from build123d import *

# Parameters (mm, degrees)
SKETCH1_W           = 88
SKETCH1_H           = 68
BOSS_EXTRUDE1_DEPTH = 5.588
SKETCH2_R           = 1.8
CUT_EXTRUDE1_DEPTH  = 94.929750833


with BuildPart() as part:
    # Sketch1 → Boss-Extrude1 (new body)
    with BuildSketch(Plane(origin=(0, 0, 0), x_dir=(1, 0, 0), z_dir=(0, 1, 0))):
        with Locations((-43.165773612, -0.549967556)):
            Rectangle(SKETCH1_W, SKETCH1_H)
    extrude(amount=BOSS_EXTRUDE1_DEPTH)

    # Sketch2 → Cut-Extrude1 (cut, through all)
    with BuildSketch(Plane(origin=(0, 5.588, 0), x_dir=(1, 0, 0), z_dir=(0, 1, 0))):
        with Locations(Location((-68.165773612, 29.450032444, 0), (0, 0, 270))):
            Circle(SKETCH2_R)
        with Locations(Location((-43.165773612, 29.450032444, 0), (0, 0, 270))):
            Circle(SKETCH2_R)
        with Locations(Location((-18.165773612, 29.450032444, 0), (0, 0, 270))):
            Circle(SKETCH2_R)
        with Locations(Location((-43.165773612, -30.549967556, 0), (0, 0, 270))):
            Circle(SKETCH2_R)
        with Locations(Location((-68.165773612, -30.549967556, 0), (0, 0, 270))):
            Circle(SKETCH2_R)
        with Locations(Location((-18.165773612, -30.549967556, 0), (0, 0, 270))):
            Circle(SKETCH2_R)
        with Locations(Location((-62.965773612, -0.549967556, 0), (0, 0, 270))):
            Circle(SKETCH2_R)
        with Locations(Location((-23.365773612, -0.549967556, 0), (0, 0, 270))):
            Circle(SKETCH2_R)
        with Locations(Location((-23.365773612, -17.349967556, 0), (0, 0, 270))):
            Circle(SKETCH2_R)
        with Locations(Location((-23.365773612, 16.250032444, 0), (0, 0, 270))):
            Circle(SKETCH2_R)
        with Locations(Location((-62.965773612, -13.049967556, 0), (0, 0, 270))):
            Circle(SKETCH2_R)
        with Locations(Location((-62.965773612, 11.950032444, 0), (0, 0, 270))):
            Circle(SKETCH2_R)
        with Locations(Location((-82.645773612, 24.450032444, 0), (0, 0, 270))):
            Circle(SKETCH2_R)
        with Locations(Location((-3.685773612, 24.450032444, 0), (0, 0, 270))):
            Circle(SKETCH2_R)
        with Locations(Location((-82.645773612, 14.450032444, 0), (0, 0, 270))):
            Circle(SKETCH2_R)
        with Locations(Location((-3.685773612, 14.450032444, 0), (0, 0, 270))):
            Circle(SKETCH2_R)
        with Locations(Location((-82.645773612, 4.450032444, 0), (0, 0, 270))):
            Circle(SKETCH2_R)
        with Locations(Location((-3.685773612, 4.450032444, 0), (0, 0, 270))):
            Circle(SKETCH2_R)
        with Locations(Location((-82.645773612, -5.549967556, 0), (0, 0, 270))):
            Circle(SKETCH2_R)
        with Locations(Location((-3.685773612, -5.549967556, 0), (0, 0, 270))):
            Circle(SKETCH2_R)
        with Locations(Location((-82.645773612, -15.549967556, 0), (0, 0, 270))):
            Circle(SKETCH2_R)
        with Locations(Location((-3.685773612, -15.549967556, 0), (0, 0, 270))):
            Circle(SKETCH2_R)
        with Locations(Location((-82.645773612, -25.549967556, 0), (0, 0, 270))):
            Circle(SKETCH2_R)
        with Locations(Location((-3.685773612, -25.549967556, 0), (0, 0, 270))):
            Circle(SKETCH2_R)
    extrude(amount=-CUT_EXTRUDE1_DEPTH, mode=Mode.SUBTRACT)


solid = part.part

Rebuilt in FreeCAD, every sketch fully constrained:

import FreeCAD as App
import Part
import Sketcher

V = App.Vector


def add_polygon(sketch, points):
    """Adds a closed chain of lines whose ends are joined by coincident constraints."""
    first, n = sketch.GeometryCount, len(points)
    for a, b in zip(points, points[1:] + points[:1]):
        sketch.addGeometry(Part.LineSegment(App.Vector(*a, 0), App.Vector(*b, 0)), False)
    for i in range(n):
        sketch.addConstraint(Sketcher.Constraint("Coincident", first + i, 2, first + (i + 1) % n, 1))

doc = App.newDocument("Part")
body = doc.addObject("PartDesign::Body", "Body")

sketch1 = doc.addObject("Sketcher::SketchObject", "Sketch")
body.addObject(sketch1)
sketch1.AttachmentSupport = (doc.XZ_Plane, [""])
sketch1.MapMode = "FlatFace"
add_polygon(sketch1, [(-87, -33), (-87, 35), (1, 35), (1, -33)])
sketch1.addConstraint(Sketcher.Constraint("Vertical", 0))
sketch1.addConstraint(Sketcher.Constraint("Horizontal", 1))
sketch1.addConstraint(Sketcher.Constraint("Vertical", 2))
sketch1.addConstraint(Sketcher.Constraint("Horizontal", 3))
sketch1.addConstraint(Sketcher.Constraint("DistanceX", 1, 1, 1, 2, 88.0))
sketch1.addConstraint(Sketcher.Constraint("DistanceY", 0, 1, 0, 2, 68.0))
sketch1.addConstraint(Sketcher.Constraint("DistanceX", 0, 2, -1, 1, 87.165774))
sketch1.addConstraint(Sketcher.Constraint("DistanceY", -1, 1, 0, 2, 34.549968))
pad1 = doc.addObject("PartDesign::Pad", "Pad")
body.addObject(pad1)
pad1.Profile = sketch1
pad1.Length = 5.588
pad1.Reversed = True

sketch2 = doc.addObject("Sketcher::SketchObject", "Sketch001")
body.addObject(sketch2)
sketch2.AttachmentSupport = (doc.XZ_Plane, [""])
sketch2.MapMode = "FlatFace"
sketch2.AttachmentOffset = App.Placement(V(0, 0, -5.588), App.Rotation())
sketch2.addGeometry(Part.Circle(V(-68.2, -29.5, 0), V(0, 0, 1), 1.8), False)
sketch2.addGeometry(Part.Circle(V(-43.2, -29.5, 0), V(0, 0, 1), 1.8), False)
sketch2.addGeometry(Part.Circle(V(-18.2, -29.5, 0), V(0, 0, 1), 1.8), False)
sketch2.addGeometry(Part.Circle(V(-43.2, 30.5, 0), V(0, 0, 1), 1.8), False)
sketch2.addGeometry(Part.Circle(V(-68.2, 30.5, 0), V(0, 0, 1), 1.8), False)
sketch2.addGeometry(Part.Circle(V(-18.2, 30.5, 0), V(0, 0, 1), 1.8), False)
sketch2.addGeometry(Part.Circle(V(-63, 0.5, 0), V(0, 0, 1), 1.8), False)
sketch2.addGeometry(Part.Circle(V(-23.4, 0.5, 0), V(0, 0, 1), 1.8), False)
sketch2.addGeometry(Part.Circle(V(-23.4, 17.3, 0), V(0, 0, 1), 1.8), False)
sketch2.addGeometry(Part.Circle(V(-23.4, -16.3, 0), V(0, 0, 1), 1.8), False)
sketch2.addGeometry(Part.Circle(V(-63, 13, 0), V(0, 0, 1), 1.8), False)
sketch2.addGeometry(Part.Circle(V(-63, -12, 0), V(0, 0, 1), 1.8), False)
sketch2.addGeometry(Part.Circle(V(-82.6, -24.5, 0), V(0, 0, 1), 1.8), False)
sketch2.addGeometry(Part.Circle(V(-3.7, -24.5, 0), V(0, 0, 1), 1.8), False)
sketch2.addGeometry(Part.Circle(V(-82.6, -14.5, 0), V(0, 0, 1), 1.8), False)
sketch2.addGeometry(Part.Circle(V(-3.7, -14.5, 0), V(0, 0, 1), 1.8), False)
sketch2.addGeometry(Part.Circle(V(-82.6, -4.5, 0), V(0, 0, 1), 1.8), False)
sketch2.addGeometry(Part.Circle(V(-3.7, -4.5, 0), V(0, 0, 1), 1.8), False)
sketch2.addGeometry(Part.Circle(V(-82.6, 5.5, 0), V(0, 0, 1), 1.8), False)
sketch2.addGeometry(Part.Circle(V(-3.7, 5.5, 0), V(0, 0, 1), 1.8), False)
sketch2.addGeometry(Part.Circle(V(-82.6, 15.5, 0), V(0, 0, 1), 1.8), False)
sketch2.addGeometry(Part.Circle(V(-3.7, 15.5, 0), V(0, 0, 1), 1.8), False)
sketch2.addGeometry(Part.Circle(V(-82.6, 25.5, 0), V(0, 0, 1), 1.8), False)
sketch2.addGeometry(Part.Circle(V(-3.7, 25.5, 0), V(0, 0, 1), 1.8), False)
sketch2.addConstraint(Sketcher.Constraint("Equal", 0, 1))
sketch2.addConstraint(Sketcher.Constraint("Equal", 1, 2))
sketch2.addConstraint(Sketcher.Constraint("Equal", 2, 3))
sketch2.addConstraint(Sketcher.Constraint("Equal", 3, 4))
sketch2.addConstraint(Sketcher.Constraint("Equal", 4, 5))
sketch2.addConstraint(Sketcher.Constraint("Equal", 5, 6))
sketch2.addConstraint(Sketcher.Constraint("Equal", 6, 7))
sketch2.addConstraint(Sketcher.Constraint("Equal", 7, 8))
sketch2.addConstraint(Sketcher.Constraint("Equal", 8, 9))
sketch2.addConstraint(Sketcher.Constraint("Equal", 9, 10))
sketch2.addConstraint(Sketcher.Constraint("Equal", 10, 11))
sketch2.addConstraint(Sketcher.Constraint("Equal", 11, 12))
sketch2.addConstraint(Sketcher.Constraint("Equal", 12, 13))
sketch2.addConstraint(Sketcher.Constraint("Equal", 13, 14))
sketch2.addConstraint(Sketcher.Constraint("Equal", 14, 15))
sketch2.addConstraint(Sketcher.Constraint("Equal", 15, 16))
sketch2.addConstraint(Sketcher.Constraint("Equal", 16, 17))
sketch2.addConstraint(Sketcher.Constraint("Equal", 17, 18))
sketch2.addConstraint(Sketcher.Constraint("Equal", 18, 19))
sketch2.addConstraint(Sketcher.Constraint("Equal", 19, 20))
sketch2.addConstraint(Sketcher.Constraint("Equal", 20, 21))
sketch2.addConstraint(Sketcher.Constraint("Equal", 21, 22))
sketch2.addConstraint(Sketcher.Constraint("Equal", 22, 23))
sketch2.addConstraint(Sketcher.Constraint("Horizontal", 0, 3, 1, 3))
sketch2.addConstraint(Sketcher.Constraint("Horizontal", 1, 3, 2, 3))
sketch2.addConstraint(Sketcher.Constraint("Horizontal", 3, 3, 4, 3))
sketch2.addConstraint(Sketcher.Constraint("Horizontal", 4, 3, 5, 3))
sketch2.addConstraint(Sketcher.Constraint("Horizontal", 6, 3, 7, 3))
sketch2.addConstraint(Sketcher.Constraint("Horizontal", 12, 3, 13, 3))
sketch2.addConstraint(Sketcher.Constraint("Horizontal", 14, 3, 15, 3))
sketch2.addConstraint(Sketcher.Constraint("Horizontal", 16, 3, 17, 3))
sketch2.addConstraint(Sketcher.Constraint("Horizontal", 18, 3, 19, 3))
sketch2.addConstraint(Sketcher.Constraint("Horizontal", 20, 3, 21, 3))
sketch2.addConstraint(Sketcher.Constraint("Horizontal", 22, 3, 23, 3))
sketch2.addConstraint(Sketcher.Constraint("Vertical", 1, 3, 3, 3))
sketch2.addConstraint(Sketcher.Constraint("Vertical", 0, 3, 4, 3))
sketch2.addConstraint(Sketcher.Constraint("Vertical", 2, 3, 5, 3))
sketch2.addConstraint(Sketcher.Constraint("Vertical", 7, 3, 8, 3))
sketch2.addConstraint(Sketcher.Constraint("Vertical", 8, 3, 9, 3))
sketch2.addConstraint(Sketcher.Constraint("Vertical", 6, 3, 10, 3))
sketch2.addConstraint(Sketcher.Constraint("Vertical", 10, 3, 11, 3))
sketch2.addConstraint(Sketcher.Constraint("Vertical", 12, 3, 14, 3))
sketch2.addConstraint(Sketcher.Constraint("Vertical", 13, 3, 15, 3))
sketch2.addConstraint(Sketcher.Constraint("Vertical", 14, 3, 16, 3))
sketch2.addConstraint(Sketcher.Constraint("Vertical", 15, 3, 17, 3))
sketch2.addConstraint(Sketcher.Constraint("Vertical", 16, 3, 18, 3))
sketch2.addConstraint(Sketcher.Constraint("Vertical", 17, 3, 19, 3))
sketch2.addConstraint(Sketcher.Constraint("Vertical", 18, 3, 20, 3))
sketch2.addConstraint(Sketcher.Constraint("Vertical", 19, 3, 21, 3))
sketch2.addConstraint(Sketcher.Constraint("Vertical", 20, 3, 22, 3))
sketch2.addConstraint(Sketcher.Constraint("Vertical", 21, 3, 23, 3))
sketch2.addConstraint(Sketcher.Constraint("Diameter", 0, 3.6))
sketch2.addConstraint(Sketcher.Constraint("DistanceX", 0, 3, 1, 3, 25.0))
sketch2.addConstraint(Sketcher.Constraint("DistanceX", 1, 3, 2, 3, 25.0))
sketch2.addConstraint(Sketcher.Constraint("DistanceY", 1, 3, 3, 3, 60.0))
sketch2.addConstraint(Sketcher.Constraint("DistanceY", 0, 3, 6, 3, 30.0))
sketch2.addConstraint(Sketcher.Constraint("DistanceY", 11, 3, 10, 3, 25.0))
sketch2.addConstraint(Sketcher.Constraint("DistanceY", 0, 3, 12, 3, 5.0))
sketch2.addConstraint(Sketcher.Constraint("DistanceY", 12, 3, 14, 3, 10.0))
sketch2.addConstraint(Sketcher.Constraint("DistanceY", 14, 3, 16, 3, 10.0))
sketch2.addConstraint(Sketcher.Constraint("DistanceY", 16, 3, 18, 3, 10.0))
sketch2.addConstraint(Sketcher.Constraint("DistanceY", 18, 3, 20, 3, 10.0))
sketch2.addConstraint(Sketcher.Constraint("DistanceY", 20, 3, 22, 3, 10.0))
sketch2.addConstraint(Sketcher.Constraint("DistanceX", 0, 3, 6, 3, 5.2))
sketch2.addConstraint(Sketcher.Constraint("DistanceX", 7, 3, 2, 3, 5.2))
sketch2.addConstraint(Sketcher.Constraint("DistanceY", 8, 3, 5, 3, 13.2))
sketch2.addConstraint(Sketcher.Constraint("DistanceY", 2, 3, 9, 3, 13.2))
sketch2.addConstraint(Sketcher.Constraint("DistanceY", 6, 3, 10, 3, 12.5))
sketch2.addConstraint(Sketcher.Constraint("DistanceX", 12, 3, 0, 3, 14.48))
sketch2.addConstraint(Sketcher.Constraint("DistanceX", 2, 3, 13, 3, 14.48))
sketch2.addConstraint(Sketcher.Constraint("DistanceX", 0, 3, -1, 1, 68.165774))
sketch2.addConstraint(Sketcher.Constraint("DistanceY", 0, 3, -1, 1, 29.450032))
pocket1 = doc.addObject("PartDesign::Pocket", "Pocket")
body.addObject(pocket1)
pocket1.Profile = sketch2
pocket1.Type = "ThroughAll"
pocket1.Reversed = True

doc.recompute()
